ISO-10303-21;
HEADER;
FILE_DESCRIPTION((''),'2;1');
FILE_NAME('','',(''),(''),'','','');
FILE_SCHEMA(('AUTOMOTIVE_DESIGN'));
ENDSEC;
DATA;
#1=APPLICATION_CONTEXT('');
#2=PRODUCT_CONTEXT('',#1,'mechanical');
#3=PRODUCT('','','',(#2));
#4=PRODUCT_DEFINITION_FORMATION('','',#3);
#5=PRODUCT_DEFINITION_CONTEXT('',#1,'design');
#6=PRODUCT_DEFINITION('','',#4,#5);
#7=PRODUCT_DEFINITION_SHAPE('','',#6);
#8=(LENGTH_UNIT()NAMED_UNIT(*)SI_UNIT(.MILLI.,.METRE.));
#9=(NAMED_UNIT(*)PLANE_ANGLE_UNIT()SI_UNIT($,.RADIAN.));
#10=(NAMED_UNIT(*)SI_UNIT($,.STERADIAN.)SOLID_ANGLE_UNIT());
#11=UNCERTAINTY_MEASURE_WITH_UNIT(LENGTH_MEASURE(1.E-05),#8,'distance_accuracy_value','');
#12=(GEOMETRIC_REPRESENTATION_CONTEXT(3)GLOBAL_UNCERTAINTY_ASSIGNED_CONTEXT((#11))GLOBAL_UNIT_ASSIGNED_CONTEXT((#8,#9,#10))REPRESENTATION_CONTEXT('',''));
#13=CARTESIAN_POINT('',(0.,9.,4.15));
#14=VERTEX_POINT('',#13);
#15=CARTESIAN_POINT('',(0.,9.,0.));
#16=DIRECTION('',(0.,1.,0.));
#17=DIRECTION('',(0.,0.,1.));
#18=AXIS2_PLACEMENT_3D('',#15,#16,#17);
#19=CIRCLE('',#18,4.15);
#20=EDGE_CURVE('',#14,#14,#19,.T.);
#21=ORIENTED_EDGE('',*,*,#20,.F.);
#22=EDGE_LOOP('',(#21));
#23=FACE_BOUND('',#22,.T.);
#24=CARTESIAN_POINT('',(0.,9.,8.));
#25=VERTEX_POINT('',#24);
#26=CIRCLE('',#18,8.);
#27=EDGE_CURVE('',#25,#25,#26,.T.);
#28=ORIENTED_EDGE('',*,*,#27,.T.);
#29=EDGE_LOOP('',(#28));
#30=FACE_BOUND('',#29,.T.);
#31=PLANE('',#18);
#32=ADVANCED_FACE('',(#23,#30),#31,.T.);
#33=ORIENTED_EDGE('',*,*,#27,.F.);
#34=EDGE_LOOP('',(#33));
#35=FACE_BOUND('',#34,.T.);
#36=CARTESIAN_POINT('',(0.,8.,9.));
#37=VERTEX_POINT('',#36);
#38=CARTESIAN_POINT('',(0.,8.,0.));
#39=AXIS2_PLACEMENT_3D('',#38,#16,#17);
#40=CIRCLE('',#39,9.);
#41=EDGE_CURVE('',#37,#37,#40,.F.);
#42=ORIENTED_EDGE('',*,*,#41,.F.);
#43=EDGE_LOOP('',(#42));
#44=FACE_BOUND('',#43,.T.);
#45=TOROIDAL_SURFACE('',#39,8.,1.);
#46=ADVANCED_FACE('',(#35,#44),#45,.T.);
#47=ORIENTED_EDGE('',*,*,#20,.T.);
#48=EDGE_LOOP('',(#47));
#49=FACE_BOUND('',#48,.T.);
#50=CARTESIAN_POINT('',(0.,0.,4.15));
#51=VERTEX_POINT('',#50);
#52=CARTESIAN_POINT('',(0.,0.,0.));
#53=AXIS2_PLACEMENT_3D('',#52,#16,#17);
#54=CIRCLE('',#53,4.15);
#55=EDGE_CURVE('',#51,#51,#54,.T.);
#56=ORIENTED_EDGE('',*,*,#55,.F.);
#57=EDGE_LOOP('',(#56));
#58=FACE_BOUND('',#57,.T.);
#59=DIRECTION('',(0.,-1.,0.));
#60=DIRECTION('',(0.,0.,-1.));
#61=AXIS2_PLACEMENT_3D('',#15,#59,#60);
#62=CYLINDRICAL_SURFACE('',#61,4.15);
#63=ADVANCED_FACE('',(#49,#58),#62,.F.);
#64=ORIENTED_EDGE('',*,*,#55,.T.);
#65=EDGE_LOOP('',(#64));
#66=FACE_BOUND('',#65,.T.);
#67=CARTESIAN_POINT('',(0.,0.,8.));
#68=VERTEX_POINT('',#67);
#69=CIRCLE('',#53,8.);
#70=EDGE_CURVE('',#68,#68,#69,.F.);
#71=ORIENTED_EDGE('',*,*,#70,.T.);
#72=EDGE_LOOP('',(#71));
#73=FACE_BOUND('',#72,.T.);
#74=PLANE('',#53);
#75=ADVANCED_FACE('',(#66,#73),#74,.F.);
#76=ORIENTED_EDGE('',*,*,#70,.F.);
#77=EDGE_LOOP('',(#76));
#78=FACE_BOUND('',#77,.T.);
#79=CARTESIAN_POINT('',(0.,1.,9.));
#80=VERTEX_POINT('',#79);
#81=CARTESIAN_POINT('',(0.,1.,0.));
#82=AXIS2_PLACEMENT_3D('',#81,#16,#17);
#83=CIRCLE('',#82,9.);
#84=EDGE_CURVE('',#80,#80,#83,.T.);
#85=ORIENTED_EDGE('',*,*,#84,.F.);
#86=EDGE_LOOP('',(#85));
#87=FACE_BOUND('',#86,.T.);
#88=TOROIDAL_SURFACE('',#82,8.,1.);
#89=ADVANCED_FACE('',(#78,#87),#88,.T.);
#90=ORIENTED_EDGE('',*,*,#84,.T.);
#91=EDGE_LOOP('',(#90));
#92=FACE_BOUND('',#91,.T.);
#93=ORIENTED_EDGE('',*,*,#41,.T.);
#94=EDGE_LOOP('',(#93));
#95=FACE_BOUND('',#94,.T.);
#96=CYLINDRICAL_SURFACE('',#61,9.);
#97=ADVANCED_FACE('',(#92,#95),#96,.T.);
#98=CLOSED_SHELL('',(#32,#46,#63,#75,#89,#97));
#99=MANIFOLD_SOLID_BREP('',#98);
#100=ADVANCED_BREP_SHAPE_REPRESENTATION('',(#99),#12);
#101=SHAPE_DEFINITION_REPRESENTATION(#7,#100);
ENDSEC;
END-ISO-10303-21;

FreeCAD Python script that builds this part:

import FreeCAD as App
import Part
import Sketcher
from FreeCAD import Vector
Q = App.Units.Quantity


def edges_at(feature, points):
    """Names of the edges that pass closest to the given points."""
    edges = feature.Shape.Edges
    near = lambda p: min(range(len(edges)), key=lambda i: edges[i].distToShape(Part.Vertex(*p))[0])
    return sorted({f"Edge{near(p) + 1}" for p in points})

doc = App.newDocument("Part")
body = doc.addObject("PartDesign::Body", "Body")

# Sketch on XZ plane
sketch1 = body.newObject("Sketcher::SketchObject", "Sketch")
sketch1.AttachmentSupport = (doc.getObject("XZ_Plane"), [""])
sketch1.MapMode = "FlatFace"
sketch1.addGeometry(Part.Circle(Vector(0, 0, 0), Vector(0, 0, 1), 9), False)
sketch1.addGeometry(Part.Circle(Vector(0, 0, 0), Vector(0, 0, 1), 4.2), False)
sketch1.addConstraint(Sketcher.Constraint("Coincident", 0, 3, -1, 1))
sketch1.addConstraint(Sketcher.Constraint("Coincident", 1, 3, -1, 1))
sketch1.addConstraint(Sketcher.Constraint("Diameter", 0, Q("18 mm")))
sketch1.addConstraint(Sketcher.Constraint("Diameter", 1, Q("8.3 mm")))
pad1 = body.newObject("PartDesign::Pad", "Pad")
pad1.Profile = sketch1
pad1.Length = 9
pad1.Reversed = True
doc.recompute()

fillet = body.newObject("PartDesign::Fillet", "Fillet")
fillet.Base = (pad1, edges_at(pad1, [(0, 0, -9), (0, 9, -9)]))
fillet.Radius = 1

doc.recompute()
